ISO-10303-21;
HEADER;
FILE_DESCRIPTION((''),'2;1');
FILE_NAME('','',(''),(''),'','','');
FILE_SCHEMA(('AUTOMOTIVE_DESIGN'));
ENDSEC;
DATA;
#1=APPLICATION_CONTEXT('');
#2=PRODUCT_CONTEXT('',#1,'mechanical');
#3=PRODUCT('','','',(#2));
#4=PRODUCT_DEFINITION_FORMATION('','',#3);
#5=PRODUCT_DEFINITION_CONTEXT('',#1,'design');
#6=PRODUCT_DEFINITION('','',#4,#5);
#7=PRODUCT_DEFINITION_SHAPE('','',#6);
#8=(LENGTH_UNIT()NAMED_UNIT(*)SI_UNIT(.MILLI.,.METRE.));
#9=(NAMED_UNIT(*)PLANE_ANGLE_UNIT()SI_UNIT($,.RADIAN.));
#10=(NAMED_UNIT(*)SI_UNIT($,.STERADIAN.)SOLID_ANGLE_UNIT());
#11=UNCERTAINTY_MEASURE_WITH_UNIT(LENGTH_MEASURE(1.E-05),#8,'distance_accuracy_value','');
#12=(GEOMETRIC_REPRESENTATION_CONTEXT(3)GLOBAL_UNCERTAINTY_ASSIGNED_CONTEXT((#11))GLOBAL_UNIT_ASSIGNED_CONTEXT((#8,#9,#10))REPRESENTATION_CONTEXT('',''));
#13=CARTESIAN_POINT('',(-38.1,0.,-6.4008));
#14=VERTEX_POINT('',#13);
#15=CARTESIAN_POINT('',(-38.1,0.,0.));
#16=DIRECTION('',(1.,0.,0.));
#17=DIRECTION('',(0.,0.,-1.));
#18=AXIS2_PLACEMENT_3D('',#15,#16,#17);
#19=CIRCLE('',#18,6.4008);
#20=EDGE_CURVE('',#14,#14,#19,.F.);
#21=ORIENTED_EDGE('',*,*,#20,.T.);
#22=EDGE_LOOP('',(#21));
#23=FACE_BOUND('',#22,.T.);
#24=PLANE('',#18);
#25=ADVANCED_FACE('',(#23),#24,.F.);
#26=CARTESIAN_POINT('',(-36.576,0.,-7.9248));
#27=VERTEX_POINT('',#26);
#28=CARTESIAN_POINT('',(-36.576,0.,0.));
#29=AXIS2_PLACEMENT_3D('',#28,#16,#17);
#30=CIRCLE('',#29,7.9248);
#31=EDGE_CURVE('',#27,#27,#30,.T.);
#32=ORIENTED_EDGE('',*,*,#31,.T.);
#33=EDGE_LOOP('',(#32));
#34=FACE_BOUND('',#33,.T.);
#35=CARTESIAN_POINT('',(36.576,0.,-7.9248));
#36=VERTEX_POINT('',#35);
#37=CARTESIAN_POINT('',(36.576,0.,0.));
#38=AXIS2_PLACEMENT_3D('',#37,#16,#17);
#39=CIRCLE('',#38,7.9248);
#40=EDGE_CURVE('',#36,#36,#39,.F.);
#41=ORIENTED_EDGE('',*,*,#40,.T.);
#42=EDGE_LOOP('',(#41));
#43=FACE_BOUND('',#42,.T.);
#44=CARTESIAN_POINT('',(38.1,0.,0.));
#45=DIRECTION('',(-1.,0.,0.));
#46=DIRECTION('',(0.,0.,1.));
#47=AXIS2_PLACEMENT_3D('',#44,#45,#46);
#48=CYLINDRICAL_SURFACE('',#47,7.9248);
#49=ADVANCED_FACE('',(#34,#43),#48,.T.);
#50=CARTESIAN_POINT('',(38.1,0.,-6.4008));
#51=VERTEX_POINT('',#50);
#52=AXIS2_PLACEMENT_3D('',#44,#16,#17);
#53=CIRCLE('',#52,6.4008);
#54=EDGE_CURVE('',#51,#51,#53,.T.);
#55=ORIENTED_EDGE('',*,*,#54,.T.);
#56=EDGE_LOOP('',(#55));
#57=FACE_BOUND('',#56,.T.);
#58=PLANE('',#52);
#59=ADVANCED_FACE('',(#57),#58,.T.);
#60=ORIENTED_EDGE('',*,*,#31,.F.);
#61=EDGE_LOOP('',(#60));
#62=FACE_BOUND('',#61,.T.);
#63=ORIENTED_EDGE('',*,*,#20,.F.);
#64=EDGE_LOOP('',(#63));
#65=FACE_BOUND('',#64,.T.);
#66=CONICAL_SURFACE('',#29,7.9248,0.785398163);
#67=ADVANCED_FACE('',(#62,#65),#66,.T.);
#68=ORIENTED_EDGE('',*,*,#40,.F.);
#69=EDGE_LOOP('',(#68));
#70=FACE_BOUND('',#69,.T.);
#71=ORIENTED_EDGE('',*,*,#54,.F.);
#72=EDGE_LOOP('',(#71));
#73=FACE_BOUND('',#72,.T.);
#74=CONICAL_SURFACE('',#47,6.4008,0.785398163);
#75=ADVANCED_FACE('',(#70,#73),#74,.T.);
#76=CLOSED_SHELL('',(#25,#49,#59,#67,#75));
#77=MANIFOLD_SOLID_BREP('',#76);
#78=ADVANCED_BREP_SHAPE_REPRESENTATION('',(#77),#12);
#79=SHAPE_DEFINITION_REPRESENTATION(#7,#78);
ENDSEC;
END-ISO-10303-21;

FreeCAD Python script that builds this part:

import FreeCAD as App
import Part
import Sketcher
Q = App.Units.Quantity


def edges_at(feature, points):
    """Names of the edges that pass closest to the given points."""
    edges = feature.Shape.Edges
    near = lambda p: min(range(len(edges)), key=lambda i: edges[i].distToShape(Part.Vertex(*p))[0])
    return sorted({f"Edge{near(p) + 1}" for p in points})

doc = App.newDocument("Part")
body = doc.addObject("PartDesign::Body", "Body")

# Sketch on YZ plane
sketch1 = doc.addObject("Sketcher::SketchObject", "Sketch")
body.addObject(sketch1)
sketch1.AttachmentSupport = (doc.YZ_Plane, [""])
sketch1.MapMode = "FlatFace"
sketch1.addGeometry(Part.Circle(App.Vector(0, 0, 0), App.Vector(0, 0, 1), 8), False)
sketch1.addConstraint([
    Sketcher.Constraint("Coincident", 0, 3, -1, 1),
    Sketcher.Constraint("Diameter", 0, Q("0.624 in")),
])
pad1 = doc.addObject("PartDesign::Pad", "Pad")
body.addObject(pad1)
pad1.Profile = sketch1
pad1.Length = Q("3 in")
pad1.Midplane = True
doc.recompute()

chamfer = doc.addObject("PartDesign::Chamfer", "Chamfer")
body.addObject(chamfer)
chamfer.Base = (pad1, edges_at(pad1, [(38.1, 0, 7.925)]))
chamfer.Size = Q("0.06 in")
doc.recompute()

chamfer2 = doc.addObject("PartDesign::Chamfer", "Chamfer001")
body.addObject(chamfer2)
chamfer2.Base = (chamfer, edges_at(chamfer, [(-38.1, 0, 7.925)]))
chamfer2.Size = Q("0.06 in")

doc.recompute()
